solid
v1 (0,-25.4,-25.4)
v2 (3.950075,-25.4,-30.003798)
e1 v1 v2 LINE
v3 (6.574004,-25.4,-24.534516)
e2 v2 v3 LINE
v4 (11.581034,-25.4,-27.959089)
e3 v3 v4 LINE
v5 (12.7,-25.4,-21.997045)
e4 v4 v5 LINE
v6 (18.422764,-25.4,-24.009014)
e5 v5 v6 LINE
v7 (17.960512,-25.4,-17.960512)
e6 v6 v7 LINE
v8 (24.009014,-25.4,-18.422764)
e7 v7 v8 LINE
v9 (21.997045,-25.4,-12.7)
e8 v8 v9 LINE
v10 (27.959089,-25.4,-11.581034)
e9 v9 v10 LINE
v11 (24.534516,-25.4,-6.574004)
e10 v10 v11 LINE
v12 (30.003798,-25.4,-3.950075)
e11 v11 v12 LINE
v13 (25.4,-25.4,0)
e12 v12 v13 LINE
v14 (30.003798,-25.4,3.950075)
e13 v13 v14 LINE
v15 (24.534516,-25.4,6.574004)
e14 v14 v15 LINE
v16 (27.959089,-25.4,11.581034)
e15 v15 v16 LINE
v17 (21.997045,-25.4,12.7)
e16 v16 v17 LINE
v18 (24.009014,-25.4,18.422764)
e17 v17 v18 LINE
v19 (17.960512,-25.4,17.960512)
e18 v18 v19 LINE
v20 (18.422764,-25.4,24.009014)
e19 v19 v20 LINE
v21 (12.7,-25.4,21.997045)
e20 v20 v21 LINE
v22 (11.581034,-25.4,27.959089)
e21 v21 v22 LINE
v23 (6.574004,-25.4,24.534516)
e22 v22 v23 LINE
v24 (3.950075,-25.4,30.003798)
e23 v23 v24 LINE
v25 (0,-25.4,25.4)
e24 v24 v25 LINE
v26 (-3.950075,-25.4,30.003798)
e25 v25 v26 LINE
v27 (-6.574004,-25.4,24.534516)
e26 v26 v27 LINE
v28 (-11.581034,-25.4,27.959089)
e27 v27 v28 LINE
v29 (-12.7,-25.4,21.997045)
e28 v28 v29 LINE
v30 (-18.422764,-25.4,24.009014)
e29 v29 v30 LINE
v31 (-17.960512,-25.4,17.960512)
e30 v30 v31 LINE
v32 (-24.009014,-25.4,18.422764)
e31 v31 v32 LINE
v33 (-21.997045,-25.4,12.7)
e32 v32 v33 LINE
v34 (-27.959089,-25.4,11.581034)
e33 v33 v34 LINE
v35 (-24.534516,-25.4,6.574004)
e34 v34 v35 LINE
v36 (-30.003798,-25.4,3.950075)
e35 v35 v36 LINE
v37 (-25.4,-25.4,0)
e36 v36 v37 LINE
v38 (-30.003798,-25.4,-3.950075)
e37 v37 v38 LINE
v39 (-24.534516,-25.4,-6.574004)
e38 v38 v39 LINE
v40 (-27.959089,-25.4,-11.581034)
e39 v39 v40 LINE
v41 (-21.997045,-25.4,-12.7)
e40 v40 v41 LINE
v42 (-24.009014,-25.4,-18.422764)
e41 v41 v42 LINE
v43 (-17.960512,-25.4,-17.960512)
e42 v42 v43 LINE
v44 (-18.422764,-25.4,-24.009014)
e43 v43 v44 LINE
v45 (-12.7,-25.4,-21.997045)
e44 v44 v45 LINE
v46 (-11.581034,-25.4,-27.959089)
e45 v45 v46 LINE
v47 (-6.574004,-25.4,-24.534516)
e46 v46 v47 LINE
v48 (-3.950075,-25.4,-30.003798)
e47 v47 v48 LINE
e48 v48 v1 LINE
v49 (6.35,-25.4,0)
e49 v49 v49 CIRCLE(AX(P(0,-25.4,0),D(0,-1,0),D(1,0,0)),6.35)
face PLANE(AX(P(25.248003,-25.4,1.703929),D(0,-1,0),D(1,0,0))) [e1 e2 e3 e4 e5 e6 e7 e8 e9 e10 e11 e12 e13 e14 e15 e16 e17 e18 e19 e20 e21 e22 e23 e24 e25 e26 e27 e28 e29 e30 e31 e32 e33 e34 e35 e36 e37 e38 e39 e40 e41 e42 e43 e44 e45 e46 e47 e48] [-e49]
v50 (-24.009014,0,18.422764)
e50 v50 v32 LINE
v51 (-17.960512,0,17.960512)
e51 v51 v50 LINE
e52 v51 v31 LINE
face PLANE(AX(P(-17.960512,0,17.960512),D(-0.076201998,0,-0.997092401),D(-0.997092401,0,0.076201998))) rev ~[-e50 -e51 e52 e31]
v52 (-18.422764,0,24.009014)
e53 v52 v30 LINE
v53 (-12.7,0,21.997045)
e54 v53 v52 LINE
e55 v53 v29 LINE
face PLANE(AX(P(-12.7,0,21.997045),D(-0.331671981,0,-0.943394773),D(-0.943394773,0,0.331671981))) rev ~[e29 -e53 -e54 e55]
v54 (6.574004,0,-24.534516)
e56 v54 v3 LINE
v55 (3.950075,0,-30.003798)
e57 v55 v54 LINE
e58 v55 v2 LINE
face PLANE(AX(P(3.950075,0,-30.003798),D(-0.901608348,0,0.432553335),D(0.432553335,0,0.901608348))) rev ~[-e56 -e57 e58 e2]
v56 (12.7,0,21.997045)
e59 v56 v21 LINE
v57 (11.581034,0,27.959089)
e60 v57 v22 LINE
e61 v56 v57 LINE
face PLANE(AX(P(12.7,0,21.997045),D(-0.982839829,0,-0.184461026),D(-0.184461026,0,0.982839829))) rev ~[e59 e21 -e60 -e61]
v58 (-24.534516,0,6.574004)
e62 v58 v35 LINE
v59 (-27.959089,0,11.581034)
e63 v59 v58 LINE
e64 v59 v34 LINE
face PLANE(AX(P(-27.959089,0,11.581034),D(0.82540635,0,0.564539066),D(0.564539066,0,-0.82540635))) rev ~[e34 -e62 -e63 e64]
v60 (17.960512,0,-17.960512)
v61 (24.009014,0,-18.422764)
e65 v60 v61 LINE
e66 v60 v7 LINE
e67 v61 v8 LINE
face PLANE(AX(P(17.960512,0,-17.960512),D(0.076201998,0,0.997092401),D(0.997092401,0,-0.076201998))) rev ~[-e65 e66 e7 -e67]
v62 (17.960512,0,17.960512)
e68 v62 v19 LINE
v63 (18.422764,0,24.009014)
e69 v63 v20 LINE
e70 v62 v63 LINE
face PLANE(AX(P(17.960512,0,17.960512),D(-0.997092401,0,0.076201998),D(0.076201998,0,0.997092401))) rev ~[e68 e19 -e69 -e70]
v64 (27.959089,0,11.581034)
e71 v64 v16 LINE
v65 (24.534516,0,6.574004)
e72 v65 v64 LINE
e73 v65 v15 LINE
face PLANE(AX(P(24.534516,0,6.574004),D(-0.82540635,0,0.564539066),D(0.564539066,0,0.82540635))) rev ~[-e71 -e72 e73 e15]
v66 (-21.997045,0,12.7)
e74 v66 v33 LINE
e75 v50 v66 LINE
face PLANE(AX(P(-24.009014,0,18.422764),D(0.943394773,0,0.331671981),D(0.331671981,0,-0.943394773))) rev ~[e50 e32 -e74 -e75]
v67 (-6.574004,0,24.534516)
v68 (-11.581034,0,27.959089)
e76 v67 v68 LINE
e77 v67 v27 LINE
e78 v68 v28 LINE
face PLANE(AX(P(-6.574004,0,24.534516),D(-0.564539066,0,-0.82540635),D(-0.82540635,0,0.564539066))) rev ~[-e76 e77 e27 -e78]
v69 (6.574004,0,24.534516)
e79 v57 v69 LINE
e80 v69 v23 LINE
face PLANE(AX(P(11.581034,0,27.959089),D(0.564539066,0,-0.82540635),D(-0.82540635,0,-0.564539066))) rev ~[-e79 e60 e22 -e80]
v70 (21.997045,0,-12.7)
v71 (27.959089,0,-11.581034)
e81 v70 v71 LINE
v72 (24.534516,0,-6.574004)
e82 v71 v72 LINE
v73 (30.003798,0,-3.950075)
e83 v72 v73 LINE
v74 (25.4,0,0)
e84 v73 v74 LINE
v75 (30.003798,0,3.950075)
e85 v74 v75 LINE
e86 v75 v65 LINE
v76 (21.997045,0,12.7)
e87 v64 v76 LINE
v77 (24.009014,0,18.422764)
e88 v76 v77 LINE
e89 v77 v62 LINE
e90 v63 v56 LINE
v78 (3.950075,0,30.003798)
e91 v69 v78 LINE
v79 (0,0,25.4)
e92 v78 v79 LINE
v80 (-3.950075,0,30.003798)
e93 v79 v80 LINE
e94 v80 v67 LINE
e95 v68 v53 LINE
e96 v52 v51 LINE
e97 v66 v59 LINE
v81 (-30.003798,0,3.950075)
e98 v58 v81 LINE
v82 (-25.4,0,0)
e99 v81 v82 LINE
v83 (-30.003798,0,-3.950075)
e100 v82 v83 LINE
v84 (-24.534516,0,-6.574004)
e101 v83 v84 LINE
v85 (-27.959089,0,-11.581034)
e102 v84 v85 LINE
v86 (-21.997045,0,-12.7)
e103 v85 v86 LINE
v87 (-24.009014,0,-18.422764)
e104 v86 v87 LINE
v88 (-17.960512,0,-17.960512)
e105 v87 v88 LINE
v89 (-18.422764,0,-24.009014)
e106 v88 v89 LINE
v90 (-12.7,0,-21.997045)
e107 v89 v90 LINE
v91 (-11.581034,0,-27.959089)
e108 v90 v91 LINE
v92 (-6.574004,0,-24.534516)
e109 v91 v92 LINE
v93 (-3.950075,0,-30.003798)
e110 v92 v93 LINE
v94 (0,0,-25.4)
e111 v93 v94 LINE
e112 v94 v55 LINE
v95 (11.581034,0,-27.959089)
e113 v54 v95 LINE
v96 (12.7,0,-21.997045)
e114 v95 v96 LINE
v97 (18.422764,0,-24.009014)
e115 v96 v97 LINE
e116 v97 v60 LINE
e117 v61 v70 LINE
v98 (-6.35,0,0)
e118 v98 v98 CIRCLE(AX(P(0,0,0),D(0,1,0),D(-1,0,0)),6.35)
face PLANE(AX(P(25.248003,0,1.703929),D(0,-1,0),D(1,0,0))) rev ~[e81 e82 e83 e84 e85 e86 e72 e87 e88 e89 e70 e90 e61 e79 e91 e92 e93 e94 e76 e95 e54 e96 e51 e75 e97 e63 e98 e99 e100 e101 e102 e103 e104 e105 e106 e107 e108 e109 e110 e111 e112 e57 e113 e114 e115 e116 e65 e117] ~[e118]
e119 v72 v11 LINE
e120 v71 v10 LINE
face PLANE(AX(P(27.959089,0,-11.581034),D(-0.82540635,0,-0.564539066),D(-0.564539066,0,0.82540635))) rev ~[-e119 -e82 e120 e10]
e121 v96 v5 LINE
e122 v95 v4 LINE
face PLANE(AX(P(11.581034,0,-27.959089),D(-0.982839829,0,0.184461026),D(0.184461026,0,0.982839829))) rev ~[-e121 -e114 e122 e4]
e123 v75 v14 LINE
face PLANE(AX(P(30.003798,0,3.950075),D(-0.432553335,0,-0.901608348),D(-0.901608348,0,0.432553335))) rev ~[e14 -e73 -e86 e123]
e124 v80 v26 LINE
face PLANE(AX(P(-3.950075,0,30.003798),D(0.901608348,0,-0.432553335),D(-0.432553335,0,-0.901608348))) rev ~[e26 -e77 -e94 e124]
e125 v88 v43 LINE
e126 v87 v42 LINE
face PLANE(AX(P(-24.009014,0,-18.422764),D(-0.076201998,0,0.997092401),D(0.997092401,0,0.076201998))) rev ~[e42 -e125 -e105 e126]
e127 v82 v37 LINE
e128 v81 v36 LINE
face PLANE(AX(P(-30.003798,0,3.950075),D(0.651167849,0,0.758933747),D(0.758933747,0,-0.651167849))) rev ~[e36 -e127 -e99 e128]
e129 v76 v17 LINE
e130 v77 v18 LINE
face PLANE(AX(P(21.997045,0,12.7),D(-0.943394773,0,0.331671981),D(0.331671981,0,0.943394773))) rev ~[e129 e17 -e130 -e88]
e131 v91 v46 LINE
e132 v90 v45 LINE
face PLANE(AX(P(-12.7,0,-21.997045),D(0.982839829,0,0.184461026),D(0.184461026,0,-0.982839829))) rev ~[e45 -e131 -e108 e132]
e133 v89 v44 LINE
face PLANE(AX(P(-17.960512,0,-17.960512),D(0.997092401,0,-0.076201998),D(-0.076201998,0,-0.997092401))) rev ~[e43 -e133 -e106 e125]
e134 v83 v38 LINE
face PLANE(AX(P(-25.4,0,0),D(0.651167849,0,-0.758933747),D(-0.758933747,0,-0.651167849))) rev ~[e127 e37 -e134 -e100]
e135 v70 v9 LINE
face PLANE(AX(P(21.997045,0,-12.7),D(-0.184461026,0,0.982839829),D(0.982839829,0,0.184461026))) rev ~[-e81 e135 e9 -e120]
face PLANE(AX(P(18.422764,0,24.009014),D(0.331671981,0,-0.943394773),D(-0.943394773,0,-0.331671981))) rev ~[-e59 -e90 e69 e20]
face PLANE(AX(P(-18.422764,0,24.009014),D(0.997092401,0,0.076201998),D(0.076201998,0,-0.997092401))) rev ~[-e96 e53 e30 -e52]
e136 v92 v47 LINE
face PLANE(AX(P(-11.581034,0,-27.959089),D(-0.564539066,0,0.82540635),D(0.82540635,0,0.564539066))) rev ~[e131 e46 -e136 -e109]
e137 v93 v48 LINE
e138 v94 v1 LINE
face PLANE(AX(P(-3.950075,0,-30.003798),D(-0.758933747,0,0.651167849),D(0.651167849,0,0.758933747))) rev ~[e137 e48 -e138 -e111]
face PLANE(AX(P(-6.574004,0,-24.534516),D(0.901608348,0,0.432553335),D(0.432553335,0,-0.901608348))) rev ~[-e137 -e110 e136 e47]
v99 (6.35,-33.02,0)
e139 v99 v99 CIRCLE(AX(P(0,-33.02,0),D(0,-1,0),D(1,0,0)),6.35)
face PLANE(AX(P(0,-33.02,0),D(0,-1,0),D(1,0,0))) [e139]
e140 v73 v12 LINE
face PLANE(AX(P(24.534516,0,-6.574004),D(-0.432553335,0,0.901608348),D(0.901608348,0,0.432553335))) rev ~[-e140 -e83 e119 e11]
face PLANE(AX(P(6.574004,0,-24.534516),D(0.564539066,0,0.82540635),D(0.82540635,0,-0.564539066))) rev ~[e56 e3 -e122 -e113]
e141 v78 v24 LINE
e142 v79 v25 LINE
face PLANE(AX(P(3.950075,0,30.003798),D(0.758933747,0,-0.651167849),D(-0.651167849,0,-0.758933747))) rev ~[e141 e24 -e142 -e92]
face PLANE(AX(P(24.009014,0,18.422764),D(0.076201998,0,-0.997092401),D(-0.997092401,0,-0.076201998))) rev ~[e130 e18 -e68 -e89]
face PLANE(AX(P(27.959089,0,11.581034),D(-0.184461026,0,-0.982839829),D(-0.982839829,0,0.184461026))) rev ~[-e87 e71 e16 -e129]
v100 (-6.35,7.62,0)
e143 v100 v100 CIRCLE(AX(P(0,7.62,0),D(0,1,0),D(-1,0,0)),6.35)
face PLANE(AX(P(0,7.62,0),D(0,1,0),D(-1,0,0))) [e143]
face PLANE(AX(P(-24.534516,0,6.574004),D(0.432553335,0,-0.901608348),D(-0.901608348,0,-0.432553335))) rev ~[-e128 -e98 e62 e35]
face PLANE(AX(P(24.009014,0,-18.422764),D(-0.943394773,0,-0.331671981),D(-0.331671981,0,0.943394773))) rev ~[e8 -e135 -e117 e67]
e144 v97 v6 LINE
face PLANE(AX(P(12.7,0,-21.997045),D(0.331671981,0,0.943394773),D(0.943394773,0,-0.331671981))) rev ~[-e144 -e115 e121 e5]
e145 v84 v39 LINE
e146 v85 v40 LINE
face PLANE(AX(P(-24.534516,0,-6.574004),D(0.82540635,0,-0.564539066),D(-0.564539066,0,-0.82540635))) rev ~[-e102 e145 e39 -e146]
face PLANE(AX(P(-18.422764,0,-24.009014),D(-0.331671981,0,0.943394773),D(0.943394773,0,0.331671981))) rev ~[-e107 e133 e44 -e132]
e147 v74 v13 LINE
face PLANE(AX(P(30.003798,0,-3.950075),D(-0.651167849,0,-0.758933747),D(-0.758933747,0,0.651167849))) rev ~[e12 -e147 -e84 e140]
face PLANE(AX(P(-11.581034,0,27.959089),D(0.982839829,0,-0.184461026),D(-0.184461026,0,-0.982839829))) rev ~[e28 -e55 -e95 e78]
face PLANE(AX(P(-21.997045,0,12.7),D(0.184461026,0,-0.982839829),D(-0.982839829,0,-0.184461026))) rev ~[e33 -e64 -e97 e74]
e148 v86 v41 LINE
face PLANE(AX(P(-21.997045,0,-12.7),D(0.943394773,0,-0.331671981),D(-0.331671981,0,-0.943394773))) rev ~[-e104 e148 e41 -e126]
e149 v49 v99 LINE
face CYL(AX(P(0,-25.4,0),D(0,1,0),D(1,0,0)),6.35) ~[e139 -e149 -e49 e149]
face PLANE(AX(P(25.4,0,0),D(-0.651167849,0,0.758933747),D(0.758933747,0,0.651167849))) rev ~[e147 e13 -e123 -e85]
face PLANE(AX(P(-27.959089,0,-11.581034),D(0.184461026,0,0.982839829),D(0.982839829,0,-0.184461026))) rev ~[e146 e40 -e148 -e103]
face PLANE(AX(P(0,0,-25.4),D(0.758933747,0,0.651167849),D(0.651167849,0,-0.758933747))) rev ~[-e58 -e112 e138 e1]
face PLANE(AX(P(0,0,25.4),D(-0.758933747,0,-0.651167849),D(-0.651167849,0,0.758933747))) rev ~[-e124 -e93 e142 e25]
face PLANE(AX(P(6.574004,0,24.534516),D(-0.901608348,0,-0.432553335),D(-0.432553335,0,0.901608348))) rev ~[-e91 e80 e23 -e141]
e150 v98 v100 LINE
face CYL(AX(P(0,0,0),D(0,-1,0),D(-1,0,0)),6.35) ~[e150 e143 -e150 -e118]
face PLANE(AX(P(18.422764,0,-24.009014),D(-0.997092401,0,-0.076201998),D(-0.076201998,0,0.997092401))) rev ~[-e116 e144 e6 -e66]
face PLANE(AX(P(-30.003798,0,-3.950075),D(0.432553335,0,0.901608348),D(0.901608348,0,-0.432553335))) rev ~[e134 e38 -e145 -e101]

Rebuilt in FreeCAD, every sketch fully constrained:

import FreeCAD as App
import Part
import Sketcher

V = App.Vector
Q = App.Units.Quantity

doc = App.newDocument("Part")
params = doc.addObject("Spreadsheet::Sheet", "Params")
for row, (alias, value) in enumerate([
    ("pad1_length", "1 in"),
    ("sketch2_diameter", "0.5 in"),
    ("pad2_length", "0.3 in"),
    ("sketch3_diameter", "0.5 in"),
    ("pad3_length", "0.3 in"),
], start=1):
    params.set(f"A{row}", alias)
    params.set(f"B{row}", "=" + value)
    params.setAlias(f"B{row}", alias)

body = doc.addObject("PartDesign::Body", "Body")

sketch1 = body.newObject("Sketcher::SketchObject", "Sketch")
sketch1.AttachmentSupport = (doc.getObject("XZ_Plane"), [""])
sketch1.MapMode = "FlatFace"
sketch1.addGeometry([
    Part.LineSegment(V(-3.950075, 30.003798, 0), V(-6.574004, 24.534516, 0)),
    Part.LineSegment(V(-6.574004, 24.534516, 0), V(-11.581034, 27.959089, 0)),
    Part.LineSegment(V(-11.581034, 27.959089, 0), V(-12.7, 21.997045, 0)),
    Part.LineSegment(V(-12.7, 21.997045, 0), V(-18.422764, 24.009014, 0)),
    Part.LineSegment(V(-18.422764, 24.009014, 0), V(-17.960512, 17.960512, 0)),
    Part.LineSegment(V(-17.960512, 17.960512, 0), V(-24.009014, 18.422764, 0)),
    Part.LineSegment(V(-24.009014, 18.422764, 0), V(-21.997045, 12.7, 0)),
    Part.LineSegment(V(-21.997045, 12.7, 0), V(-27.959089, 11.581034, 0)),
    Part.LineSegment(V(-27.959089, 11.581034, 0), V(-24.534516, 6.574004, 0)),
    Part.LineSegment(V(-24.534516, 6.574004, 0), V(-30.003798, 3.950075, 0)),
    Part.LineSegment(V(-30.003798, 3.950075, 0), V(-25.4, 0, 0)),
    Part.LineSegment(V(-25.4, 0, 0), V(-30.003798, -3.950075, 0)),
    Part.LineSegment(V(-30.003798, -3.950075, 0), V(-24.534516, -6.574004, 0)),
    Part.LineSegment(V(-24.534516, -6.574004, 0), V(-27.959089, -11.581034, 0)),
    Part.LineSegment(V(-27.959089, -11.581034, 0), V(-21.997045, -12.7, 0)),
    Part.LineSegment(V(-21.997045, -12.7, 0), V(-24.009014, -18.422764, 0)),
    Part.LineSegment(V(-24.009014, -18.422764, 0), V(-17.960512, -17.960512, 0)),
    Part.LineSegment(V(-17.960512, -17.960512, 0), V(-18.422764, -24.009014, 0)),
    Part.LineSegment(V(-18.422764, -24.009014, 0), V(-12.7, -21.997045, 0)),
    Part.LineSegment(V(-12.7, -21.997045, 0), V(-11.581034, -27.959089, 0)),
    Part.LineSegment(V(-11.581034, -27.959089, 0), V(-6.574004, -24.534516, 0)),
    Part.LineSegment(V(-6.574004, -24.534516, 0), V(-3.950075, -30.003798, 0)),
    Part.LineSegment(V(-3.950075, -30.003798, 0), V(0, -25.4, 0)),
    Part.LineSegment(V(0, -25.4, 0), V(3.950075, -30.003798, 0)),
    Part.LineSegment(V(3.950075, -30.003798, 0), V(6.574004, -24.534516, 0)),
    Part.LineSegment(V(6.574004, -24.534516, 0), V(11.581034, -27.959089, 0)),
    Part.LineSegment(V(11.581034, -27.959089, 0), V(12.7, -21.997045, 0)),
    Part.LineSegment(V(12.7, -21.997045, 0), V(18.422764, -24.009014, 0)),
    Part.LineSegment(V(18.422764, -24.009014, 0), V(17.960512, -17.960512, 0)),
    Part.LineSegment(V(17.960512, -17.960512, 0), V(24.009014, -18.422764, 0)),
    Part.LineSegment(V(24.009014, -18.422764, 0), V(21.997045, -12.7, 0)),
    Part.LineSegment(V(21.997045, -12.7, 0), V(27.959089, -11.581034, 0)),
    Part.LineSegment(V(27.959089, -11.581034, 0), V(24.534516, -6.574004, 0)),
    Part.LineSegment(V(24.534516, -6.574004, 0), V(30.003798, -3.950075, 0)),
    Part.LineSegment(V(30.003798, -3.950075, 0), V(25.4, 0, 0)),
    Part.LineSegment(V(25.4, 0, 0), V(30.003798, 3.950075, 0)),
    Part.LineSegment(V(30.003798, 3.950075, 0), V(24.534516, 6.574004, 0)),
    Part.LineSegment(V(24.534516, 6.574004, 0), V(27.959089, 11.581034, 0)),
    Part.LineSegment(V(27.959089, 11.581034, 0), V(21.997045, 12.7, 0)),
    Part.LineSegment(V(21.997045, 12.7, 0), V(24.009014, 18.422764, 0)),
    Part.LineSegment(V(24.009014, 18.422764, 0), V(17.960512, 17.960512, 0)),
    Part.LineSegment(V(17.960512, 17.960512, 0), V(18.422764, 24.009014, 0)),
    Part.LineSegment(V(18.422764, 24.009014, 0), V(12.7, 21.997045, 0)),
    Part.LineSegment(V(12.7, 21.997045, 0), V(11.581034, 27.959089, 0)),
    Part.LineSegment(V(11.581034, 27.959089, 0), V(6.574004, 24.534516, 0)),
    Part.LineSegment(V(6.574004, 24.534516, 0), V(3.950075, 30.003798, 0)),
    Part.LineSegment(V(3.950075, 30.003798, 0), V(0, 25.4, 0)),
    Part.LineSegment(V(0, 25.4, 0), V(-3.950075, 30.003798, 0)),
], False)
sketch1.addConstraint([
    Sketcher.Constraint("Coincident", 0, 2, 1, 1),
    Sketcher.Constraint("Coincident", 1, 2, 2, 1),
    Sketcher.Constraint("Coincident", 2, 2, 3, 1),
    Sketcher.Constraint("Coincident", 3, 2, 4, 1),
    Sketcher.Constraint("Coincident", 4, 2, 5, 1),
    Sketcher.Constraint("Coincident", 5, 2, 6, 1),
    Sketcher.Constraint("Coincident", 6, 2, 7, 1),
    Sketcher.Constraint("Coincident", 7, 2, 8, 1),
    Sketcher.Constraint("Coincident", 8, 2, 9, 1),
    Sketcher.Constraint("Coincident", 9, 2, 10, 1),
    Sketcher.Constraint("Coincident", 10, 2, 11, 1),
    Sketcher.Constraint("Coincident", 11, 2, 12, 1),
    Sketcher.Constraint("Coincident", 12, 2, 13, 1),
    Sketcher.Constraint("Coincident", 13, 2, 14, 1),
    Sketcher.Constraint("Coincident", 14, 2, 15, 1),
    Sketcher.Constraint("Coincident", 15, 2, 16, 1),
    Sketcher.Constraint("Coincident", 16, 2, 17, 1),
    Sketcher.Constraint("Coincident", 17, 2, 18, 1),
    Sketcher.Constraint("Coincident", 18, 2, 19, 1),
    Sketcher.Constraint("Coincident", 19, 2, 20, 1),
    Sketcher.Constraint("Coincident", 20, 2, 21, 1),
    Sketcher.Constraint("Coincident", 21, 2, 22, 1),
    Sketcher.Constraint("Coincident", 22, 2, 23, 1),
    Sketcher.Constraint("Coincident", 23, 2, 24, 1),
    Sketcher.Constraint("Coincident", 24, 2, 25, 1),
    Sketcher.Constraint("Coincident", 25, 2, 26, 1),
    Sketcher.Constraint("Coincident", 26, 2, 27, 1),
    Sketcher.Constraint("Coincident", 27, 2, 28, 1),
    Sketcher.Constraint("Coincident", 28, 2, 29, 1),
    Sketcher.Constraint("Coincident", 29, 2, 30, 1),
    Sketcher.Constraint("Coincident", 30, 2, 31, 1),
    Sketcher.Constraint("Coincident", 31, 2, 32, 1),
    Sketcher.Constraint("Coincident", 32, 2, 33, 1),
    Sketcher.Constraint("Coincident", 33, 2, 34, 1),
    Sketcher.Constraint("Coincident", 34, 2, 35, 1),
    Sketcher.Constraint("Coincident", 35, 2, 36, 1),
    Sketcher.Constraint("Coincident", 36, 2, 37, 1),
    Sketcher.Constraint("Coincident", 37, 2, 38, 1),
    Sketcher.Constraint("Coincident", 38, 2, 39, 1),
    Sketcher.Constraint("Coincident", 39, 2, 40, 1),
    Sketcher.Constraint("Coincident", 40, 2, 41, 1),
    Sketcher.Constraint("Coincident", 41, 2, 42, 1),
    Sketcher.Constraint("Coincident", 42, 2, 43, 1),
    Sketcher.Constraint("Coincident", 43, 2, 44, 1),
    Sketcher.Constraint("Coincident", 44, 2, 45, 1),
    Sketcher.Constraint("Coincident", 45, 2, 46, 1),
    Sketcher.Constraint("Coincident", 46, 2, 47, 1),
    Sketcher.Constraint("Coincident", 47, 2, 0, 1),
    Sketcher.Constraint("Symmetric", 0, 2, 24, 2, -1, 1),
    Sketcher.Constraint("Symmetric", 1, 2, 25, 2, -1, 1),
    Sketcher.Constraint("Symmetric", 2, 2, 26, 2, -1, 1),
    Sketcher.Constraint("Symmetric", 3, 2, 27, 2, -1, 1),
    Sketcher.Constraint("Symmetric", 4, 2, 28, 2, -1, 1),
    Sketcher.Constraint("Symmetric", 5, 2, 29, 2, -1, 1),
    Sketcher.Constraint("Symmetric", 6, 2, 30, 2, -1, 1),
    Sketcher.Constraint("Symmetric", 7, 2, 31, 2, -1, 1),
    Sketcher.Constraint("Symmetric", 8, 2, 32, 2, -1, 1),
    Sketcher.Constraint("Symmetric", 9, 2, 33, 2, -1, 1),
    Sketcher.Constraint("Symmetric", 10, 2, 34, 2, -1, 1),
    Sketcher.Constraint("Symmetric", 11, 2, 35, 2, -1, 1),
    Sketcher.Constraint("Symmetric", 12, 2, 36, 2, -1, 1),
    Sketcher.Constraint("Symmetric", 13, 2, 37, 2, -1, 1),
    Sketcher.Constraint("Symmetric", 14, 2, 38, 2, -1, 1),
    Sketcher.Constraint("Symmetric", 15, 2, 39, 2, -1, 1),
    Sketcher.Constraint("Symmetric", 16, 2, 40, 2, -1, 1),
    Sketcher.Constraint("Symmetric", 17, 2, 41, 2, -1, 1),
    Sketcher.Constraint("Symmetric", 18, 2, 42, 2, -1, 1),
    Sketcher.Constraint("Symmetric", 19, 2, 43, 2, -1, 1),
    Sketcher.Constraint("Symmetric", 20, 2, 44, 2, -1, 1),
    Sketcher.Constraint("Symmetric", 21, 2, 45, 2, -1, 1),
    Sketcher.Constraint("Symmetric", 22, 2, 46, 2, -1, 1),
    Sketcher.Constraint("Symmetric", 23, 2, 47, 2, -1, 1),
    Sketcher.Constraint("Symmetric", 21, 2, 23, 2, -2),
    Sketcher.Constraint("Symmetric", 20, 2, 24, 2, -2),
    Sketcher.Constraint("Symmetric", 19, 2, 25, 2, -2),
    Sketcher.Constraint("Symmetric", 18, 2, 26, 2, -2),
    Sketcher.Constraint("Symmetric", 17, 2, 27, 2, -2),
    Sketcher.Constraint("Symmetric", 16, 2, 28, 2, -2),
    Sketcher.Constraint("Symmetric", 15, 2, 29, 2, -2),
    Sketcher.Constraint("Symmetric", 14, 2, 30, 2, -2),
    Sketcher.Constraint("Symmetric", 13, 2, 31, 2, -2),
    Sketcher.Constraint("Symmetric", 12, 2, 32, 2, -2),
    Sketcher.Constraint("Symmetric", 11, 2, 33, 2, -2),
    Sketcher.Constraint("PointOnObject", 10, 2, -1),
    Sketcher.Constraint("PointOnObject", 22, 2, -2),
    Sketcher.Constraint("Perpendicular", 0, 12),
    Sketcher.Constraint("Perpendicular", 1, 13),
    Sketcher.Constraint("Perpendicular", 2, 14),
    Sketcher.Constraint("Perpendicular", 3, 15),
    Sketcher.Constraint("Perpendicular", 4, 16),
    Sketcher.Constraint("Perpendicular", 10, 22),
    Sketcher.Constraint("Equal", 0, 1),
    Sketcher.Constraint("Equal", 1, 2),
    Sketcher.Constraint("Equal", 2, 3),
    Sketcher.Constraint("Equal", 3, 4),
    Sketcher.Constraint("Equal", 4, 5),
    Sketcher.Constraint("Equal", 5, 6),
    Sketcher.Constraint("Equal", 6, 7),
    Sketcher.Constraint("Equal", 7, 8),
    Sketcher.Constraint("Equal", 8, 9),
    Sketcher.Constraint("Equal", 9, 10),
    Sketcher.Constraint("Equal", 21, 22),
    Sketcher.Constraint("DistanceX", 10, 2, -1, 1, Q("1 in")),
    Sketcher.Constraint("DistanceX", 2, 2, -1, 1, Q("0.5 in")),
    Sketcher.Constraint("DistanceY", 4, 2, 3, 2, 6.048501),
    Sketcher.Constraint("Distance", 0, 6.066139),
    Sketcher.Constraint("DistanceY", -1, 1, 1, 2, 27.959089),
    Sketcher.Constraint("DistanceX", 1, 2, 0, 2, 5.00703),
    Sketcher.Constraint("DistanceY", 2, 2, 0, 2, 2.537471),
])
pad1 = body.newObject("PartDesign::Pad", "Pad")
pad1.Profile = sketch1
pad1.setExpression("Length", "Params.pad1_length")

sketch2 = body.newObject("Sketcher::SketchObject", "Sketch001")
sketch2.AttachmentSupport = (doc.getObject("XZ_Plane"), [""])
sketch2.MapMode = "FlatFace"
sketch2.AttachmentOffset = App.Placement(V(0, 0, 1 * 25.4), App.Rotation())
sketch2.addGeometry(Part.Circle(V(0, 0, 0), V(0, 0, 1), 6.35), False)
sketch2.addConstraint([
    Sketcher.Constraint("Coincident", 0, 3, -1, 1),
    Sketcher.Constraint("Diameter", 0, Q("0.5 in")),
])
sketch2.setExpression("Constraints[1]", "Params.sketch2_diameter")
pad2 = body.newObject("PartDesign::Pad", "Pad001")
pad2.Profile = sketch2
pad2.setExpression("Length", "Params.pad2_length")

sketch3 = body.newObject("Sketcher::SketchObject", "Sketch002")
sketch3.AttachmentSupport = (doc.getObject("XZ_Plane"), [""])
sketch3.MapMode = "FlatFace"
sketch3.addGeometry(Part.Circle(V(0, 0, 0), V(0, 0, 1), 6.35), False)
sketch3.addConstraint([
    Sketcher.Constraint("Coincident", 0, 3, -1, 1),
    Sketcher.Constraint("Diameter", 0, Q("0.5 in")),
])
sketch3.setExpression("Constraints[1]", "Params.sketch3_diameter")
pad3 = body.newObject("PartDesign::Pad", "Pad002")
pad3.Profile = sketch3
pad3.setExpression("Length", "Params.pad3_length")
pad3.Reversed = True

doc.recompute()
